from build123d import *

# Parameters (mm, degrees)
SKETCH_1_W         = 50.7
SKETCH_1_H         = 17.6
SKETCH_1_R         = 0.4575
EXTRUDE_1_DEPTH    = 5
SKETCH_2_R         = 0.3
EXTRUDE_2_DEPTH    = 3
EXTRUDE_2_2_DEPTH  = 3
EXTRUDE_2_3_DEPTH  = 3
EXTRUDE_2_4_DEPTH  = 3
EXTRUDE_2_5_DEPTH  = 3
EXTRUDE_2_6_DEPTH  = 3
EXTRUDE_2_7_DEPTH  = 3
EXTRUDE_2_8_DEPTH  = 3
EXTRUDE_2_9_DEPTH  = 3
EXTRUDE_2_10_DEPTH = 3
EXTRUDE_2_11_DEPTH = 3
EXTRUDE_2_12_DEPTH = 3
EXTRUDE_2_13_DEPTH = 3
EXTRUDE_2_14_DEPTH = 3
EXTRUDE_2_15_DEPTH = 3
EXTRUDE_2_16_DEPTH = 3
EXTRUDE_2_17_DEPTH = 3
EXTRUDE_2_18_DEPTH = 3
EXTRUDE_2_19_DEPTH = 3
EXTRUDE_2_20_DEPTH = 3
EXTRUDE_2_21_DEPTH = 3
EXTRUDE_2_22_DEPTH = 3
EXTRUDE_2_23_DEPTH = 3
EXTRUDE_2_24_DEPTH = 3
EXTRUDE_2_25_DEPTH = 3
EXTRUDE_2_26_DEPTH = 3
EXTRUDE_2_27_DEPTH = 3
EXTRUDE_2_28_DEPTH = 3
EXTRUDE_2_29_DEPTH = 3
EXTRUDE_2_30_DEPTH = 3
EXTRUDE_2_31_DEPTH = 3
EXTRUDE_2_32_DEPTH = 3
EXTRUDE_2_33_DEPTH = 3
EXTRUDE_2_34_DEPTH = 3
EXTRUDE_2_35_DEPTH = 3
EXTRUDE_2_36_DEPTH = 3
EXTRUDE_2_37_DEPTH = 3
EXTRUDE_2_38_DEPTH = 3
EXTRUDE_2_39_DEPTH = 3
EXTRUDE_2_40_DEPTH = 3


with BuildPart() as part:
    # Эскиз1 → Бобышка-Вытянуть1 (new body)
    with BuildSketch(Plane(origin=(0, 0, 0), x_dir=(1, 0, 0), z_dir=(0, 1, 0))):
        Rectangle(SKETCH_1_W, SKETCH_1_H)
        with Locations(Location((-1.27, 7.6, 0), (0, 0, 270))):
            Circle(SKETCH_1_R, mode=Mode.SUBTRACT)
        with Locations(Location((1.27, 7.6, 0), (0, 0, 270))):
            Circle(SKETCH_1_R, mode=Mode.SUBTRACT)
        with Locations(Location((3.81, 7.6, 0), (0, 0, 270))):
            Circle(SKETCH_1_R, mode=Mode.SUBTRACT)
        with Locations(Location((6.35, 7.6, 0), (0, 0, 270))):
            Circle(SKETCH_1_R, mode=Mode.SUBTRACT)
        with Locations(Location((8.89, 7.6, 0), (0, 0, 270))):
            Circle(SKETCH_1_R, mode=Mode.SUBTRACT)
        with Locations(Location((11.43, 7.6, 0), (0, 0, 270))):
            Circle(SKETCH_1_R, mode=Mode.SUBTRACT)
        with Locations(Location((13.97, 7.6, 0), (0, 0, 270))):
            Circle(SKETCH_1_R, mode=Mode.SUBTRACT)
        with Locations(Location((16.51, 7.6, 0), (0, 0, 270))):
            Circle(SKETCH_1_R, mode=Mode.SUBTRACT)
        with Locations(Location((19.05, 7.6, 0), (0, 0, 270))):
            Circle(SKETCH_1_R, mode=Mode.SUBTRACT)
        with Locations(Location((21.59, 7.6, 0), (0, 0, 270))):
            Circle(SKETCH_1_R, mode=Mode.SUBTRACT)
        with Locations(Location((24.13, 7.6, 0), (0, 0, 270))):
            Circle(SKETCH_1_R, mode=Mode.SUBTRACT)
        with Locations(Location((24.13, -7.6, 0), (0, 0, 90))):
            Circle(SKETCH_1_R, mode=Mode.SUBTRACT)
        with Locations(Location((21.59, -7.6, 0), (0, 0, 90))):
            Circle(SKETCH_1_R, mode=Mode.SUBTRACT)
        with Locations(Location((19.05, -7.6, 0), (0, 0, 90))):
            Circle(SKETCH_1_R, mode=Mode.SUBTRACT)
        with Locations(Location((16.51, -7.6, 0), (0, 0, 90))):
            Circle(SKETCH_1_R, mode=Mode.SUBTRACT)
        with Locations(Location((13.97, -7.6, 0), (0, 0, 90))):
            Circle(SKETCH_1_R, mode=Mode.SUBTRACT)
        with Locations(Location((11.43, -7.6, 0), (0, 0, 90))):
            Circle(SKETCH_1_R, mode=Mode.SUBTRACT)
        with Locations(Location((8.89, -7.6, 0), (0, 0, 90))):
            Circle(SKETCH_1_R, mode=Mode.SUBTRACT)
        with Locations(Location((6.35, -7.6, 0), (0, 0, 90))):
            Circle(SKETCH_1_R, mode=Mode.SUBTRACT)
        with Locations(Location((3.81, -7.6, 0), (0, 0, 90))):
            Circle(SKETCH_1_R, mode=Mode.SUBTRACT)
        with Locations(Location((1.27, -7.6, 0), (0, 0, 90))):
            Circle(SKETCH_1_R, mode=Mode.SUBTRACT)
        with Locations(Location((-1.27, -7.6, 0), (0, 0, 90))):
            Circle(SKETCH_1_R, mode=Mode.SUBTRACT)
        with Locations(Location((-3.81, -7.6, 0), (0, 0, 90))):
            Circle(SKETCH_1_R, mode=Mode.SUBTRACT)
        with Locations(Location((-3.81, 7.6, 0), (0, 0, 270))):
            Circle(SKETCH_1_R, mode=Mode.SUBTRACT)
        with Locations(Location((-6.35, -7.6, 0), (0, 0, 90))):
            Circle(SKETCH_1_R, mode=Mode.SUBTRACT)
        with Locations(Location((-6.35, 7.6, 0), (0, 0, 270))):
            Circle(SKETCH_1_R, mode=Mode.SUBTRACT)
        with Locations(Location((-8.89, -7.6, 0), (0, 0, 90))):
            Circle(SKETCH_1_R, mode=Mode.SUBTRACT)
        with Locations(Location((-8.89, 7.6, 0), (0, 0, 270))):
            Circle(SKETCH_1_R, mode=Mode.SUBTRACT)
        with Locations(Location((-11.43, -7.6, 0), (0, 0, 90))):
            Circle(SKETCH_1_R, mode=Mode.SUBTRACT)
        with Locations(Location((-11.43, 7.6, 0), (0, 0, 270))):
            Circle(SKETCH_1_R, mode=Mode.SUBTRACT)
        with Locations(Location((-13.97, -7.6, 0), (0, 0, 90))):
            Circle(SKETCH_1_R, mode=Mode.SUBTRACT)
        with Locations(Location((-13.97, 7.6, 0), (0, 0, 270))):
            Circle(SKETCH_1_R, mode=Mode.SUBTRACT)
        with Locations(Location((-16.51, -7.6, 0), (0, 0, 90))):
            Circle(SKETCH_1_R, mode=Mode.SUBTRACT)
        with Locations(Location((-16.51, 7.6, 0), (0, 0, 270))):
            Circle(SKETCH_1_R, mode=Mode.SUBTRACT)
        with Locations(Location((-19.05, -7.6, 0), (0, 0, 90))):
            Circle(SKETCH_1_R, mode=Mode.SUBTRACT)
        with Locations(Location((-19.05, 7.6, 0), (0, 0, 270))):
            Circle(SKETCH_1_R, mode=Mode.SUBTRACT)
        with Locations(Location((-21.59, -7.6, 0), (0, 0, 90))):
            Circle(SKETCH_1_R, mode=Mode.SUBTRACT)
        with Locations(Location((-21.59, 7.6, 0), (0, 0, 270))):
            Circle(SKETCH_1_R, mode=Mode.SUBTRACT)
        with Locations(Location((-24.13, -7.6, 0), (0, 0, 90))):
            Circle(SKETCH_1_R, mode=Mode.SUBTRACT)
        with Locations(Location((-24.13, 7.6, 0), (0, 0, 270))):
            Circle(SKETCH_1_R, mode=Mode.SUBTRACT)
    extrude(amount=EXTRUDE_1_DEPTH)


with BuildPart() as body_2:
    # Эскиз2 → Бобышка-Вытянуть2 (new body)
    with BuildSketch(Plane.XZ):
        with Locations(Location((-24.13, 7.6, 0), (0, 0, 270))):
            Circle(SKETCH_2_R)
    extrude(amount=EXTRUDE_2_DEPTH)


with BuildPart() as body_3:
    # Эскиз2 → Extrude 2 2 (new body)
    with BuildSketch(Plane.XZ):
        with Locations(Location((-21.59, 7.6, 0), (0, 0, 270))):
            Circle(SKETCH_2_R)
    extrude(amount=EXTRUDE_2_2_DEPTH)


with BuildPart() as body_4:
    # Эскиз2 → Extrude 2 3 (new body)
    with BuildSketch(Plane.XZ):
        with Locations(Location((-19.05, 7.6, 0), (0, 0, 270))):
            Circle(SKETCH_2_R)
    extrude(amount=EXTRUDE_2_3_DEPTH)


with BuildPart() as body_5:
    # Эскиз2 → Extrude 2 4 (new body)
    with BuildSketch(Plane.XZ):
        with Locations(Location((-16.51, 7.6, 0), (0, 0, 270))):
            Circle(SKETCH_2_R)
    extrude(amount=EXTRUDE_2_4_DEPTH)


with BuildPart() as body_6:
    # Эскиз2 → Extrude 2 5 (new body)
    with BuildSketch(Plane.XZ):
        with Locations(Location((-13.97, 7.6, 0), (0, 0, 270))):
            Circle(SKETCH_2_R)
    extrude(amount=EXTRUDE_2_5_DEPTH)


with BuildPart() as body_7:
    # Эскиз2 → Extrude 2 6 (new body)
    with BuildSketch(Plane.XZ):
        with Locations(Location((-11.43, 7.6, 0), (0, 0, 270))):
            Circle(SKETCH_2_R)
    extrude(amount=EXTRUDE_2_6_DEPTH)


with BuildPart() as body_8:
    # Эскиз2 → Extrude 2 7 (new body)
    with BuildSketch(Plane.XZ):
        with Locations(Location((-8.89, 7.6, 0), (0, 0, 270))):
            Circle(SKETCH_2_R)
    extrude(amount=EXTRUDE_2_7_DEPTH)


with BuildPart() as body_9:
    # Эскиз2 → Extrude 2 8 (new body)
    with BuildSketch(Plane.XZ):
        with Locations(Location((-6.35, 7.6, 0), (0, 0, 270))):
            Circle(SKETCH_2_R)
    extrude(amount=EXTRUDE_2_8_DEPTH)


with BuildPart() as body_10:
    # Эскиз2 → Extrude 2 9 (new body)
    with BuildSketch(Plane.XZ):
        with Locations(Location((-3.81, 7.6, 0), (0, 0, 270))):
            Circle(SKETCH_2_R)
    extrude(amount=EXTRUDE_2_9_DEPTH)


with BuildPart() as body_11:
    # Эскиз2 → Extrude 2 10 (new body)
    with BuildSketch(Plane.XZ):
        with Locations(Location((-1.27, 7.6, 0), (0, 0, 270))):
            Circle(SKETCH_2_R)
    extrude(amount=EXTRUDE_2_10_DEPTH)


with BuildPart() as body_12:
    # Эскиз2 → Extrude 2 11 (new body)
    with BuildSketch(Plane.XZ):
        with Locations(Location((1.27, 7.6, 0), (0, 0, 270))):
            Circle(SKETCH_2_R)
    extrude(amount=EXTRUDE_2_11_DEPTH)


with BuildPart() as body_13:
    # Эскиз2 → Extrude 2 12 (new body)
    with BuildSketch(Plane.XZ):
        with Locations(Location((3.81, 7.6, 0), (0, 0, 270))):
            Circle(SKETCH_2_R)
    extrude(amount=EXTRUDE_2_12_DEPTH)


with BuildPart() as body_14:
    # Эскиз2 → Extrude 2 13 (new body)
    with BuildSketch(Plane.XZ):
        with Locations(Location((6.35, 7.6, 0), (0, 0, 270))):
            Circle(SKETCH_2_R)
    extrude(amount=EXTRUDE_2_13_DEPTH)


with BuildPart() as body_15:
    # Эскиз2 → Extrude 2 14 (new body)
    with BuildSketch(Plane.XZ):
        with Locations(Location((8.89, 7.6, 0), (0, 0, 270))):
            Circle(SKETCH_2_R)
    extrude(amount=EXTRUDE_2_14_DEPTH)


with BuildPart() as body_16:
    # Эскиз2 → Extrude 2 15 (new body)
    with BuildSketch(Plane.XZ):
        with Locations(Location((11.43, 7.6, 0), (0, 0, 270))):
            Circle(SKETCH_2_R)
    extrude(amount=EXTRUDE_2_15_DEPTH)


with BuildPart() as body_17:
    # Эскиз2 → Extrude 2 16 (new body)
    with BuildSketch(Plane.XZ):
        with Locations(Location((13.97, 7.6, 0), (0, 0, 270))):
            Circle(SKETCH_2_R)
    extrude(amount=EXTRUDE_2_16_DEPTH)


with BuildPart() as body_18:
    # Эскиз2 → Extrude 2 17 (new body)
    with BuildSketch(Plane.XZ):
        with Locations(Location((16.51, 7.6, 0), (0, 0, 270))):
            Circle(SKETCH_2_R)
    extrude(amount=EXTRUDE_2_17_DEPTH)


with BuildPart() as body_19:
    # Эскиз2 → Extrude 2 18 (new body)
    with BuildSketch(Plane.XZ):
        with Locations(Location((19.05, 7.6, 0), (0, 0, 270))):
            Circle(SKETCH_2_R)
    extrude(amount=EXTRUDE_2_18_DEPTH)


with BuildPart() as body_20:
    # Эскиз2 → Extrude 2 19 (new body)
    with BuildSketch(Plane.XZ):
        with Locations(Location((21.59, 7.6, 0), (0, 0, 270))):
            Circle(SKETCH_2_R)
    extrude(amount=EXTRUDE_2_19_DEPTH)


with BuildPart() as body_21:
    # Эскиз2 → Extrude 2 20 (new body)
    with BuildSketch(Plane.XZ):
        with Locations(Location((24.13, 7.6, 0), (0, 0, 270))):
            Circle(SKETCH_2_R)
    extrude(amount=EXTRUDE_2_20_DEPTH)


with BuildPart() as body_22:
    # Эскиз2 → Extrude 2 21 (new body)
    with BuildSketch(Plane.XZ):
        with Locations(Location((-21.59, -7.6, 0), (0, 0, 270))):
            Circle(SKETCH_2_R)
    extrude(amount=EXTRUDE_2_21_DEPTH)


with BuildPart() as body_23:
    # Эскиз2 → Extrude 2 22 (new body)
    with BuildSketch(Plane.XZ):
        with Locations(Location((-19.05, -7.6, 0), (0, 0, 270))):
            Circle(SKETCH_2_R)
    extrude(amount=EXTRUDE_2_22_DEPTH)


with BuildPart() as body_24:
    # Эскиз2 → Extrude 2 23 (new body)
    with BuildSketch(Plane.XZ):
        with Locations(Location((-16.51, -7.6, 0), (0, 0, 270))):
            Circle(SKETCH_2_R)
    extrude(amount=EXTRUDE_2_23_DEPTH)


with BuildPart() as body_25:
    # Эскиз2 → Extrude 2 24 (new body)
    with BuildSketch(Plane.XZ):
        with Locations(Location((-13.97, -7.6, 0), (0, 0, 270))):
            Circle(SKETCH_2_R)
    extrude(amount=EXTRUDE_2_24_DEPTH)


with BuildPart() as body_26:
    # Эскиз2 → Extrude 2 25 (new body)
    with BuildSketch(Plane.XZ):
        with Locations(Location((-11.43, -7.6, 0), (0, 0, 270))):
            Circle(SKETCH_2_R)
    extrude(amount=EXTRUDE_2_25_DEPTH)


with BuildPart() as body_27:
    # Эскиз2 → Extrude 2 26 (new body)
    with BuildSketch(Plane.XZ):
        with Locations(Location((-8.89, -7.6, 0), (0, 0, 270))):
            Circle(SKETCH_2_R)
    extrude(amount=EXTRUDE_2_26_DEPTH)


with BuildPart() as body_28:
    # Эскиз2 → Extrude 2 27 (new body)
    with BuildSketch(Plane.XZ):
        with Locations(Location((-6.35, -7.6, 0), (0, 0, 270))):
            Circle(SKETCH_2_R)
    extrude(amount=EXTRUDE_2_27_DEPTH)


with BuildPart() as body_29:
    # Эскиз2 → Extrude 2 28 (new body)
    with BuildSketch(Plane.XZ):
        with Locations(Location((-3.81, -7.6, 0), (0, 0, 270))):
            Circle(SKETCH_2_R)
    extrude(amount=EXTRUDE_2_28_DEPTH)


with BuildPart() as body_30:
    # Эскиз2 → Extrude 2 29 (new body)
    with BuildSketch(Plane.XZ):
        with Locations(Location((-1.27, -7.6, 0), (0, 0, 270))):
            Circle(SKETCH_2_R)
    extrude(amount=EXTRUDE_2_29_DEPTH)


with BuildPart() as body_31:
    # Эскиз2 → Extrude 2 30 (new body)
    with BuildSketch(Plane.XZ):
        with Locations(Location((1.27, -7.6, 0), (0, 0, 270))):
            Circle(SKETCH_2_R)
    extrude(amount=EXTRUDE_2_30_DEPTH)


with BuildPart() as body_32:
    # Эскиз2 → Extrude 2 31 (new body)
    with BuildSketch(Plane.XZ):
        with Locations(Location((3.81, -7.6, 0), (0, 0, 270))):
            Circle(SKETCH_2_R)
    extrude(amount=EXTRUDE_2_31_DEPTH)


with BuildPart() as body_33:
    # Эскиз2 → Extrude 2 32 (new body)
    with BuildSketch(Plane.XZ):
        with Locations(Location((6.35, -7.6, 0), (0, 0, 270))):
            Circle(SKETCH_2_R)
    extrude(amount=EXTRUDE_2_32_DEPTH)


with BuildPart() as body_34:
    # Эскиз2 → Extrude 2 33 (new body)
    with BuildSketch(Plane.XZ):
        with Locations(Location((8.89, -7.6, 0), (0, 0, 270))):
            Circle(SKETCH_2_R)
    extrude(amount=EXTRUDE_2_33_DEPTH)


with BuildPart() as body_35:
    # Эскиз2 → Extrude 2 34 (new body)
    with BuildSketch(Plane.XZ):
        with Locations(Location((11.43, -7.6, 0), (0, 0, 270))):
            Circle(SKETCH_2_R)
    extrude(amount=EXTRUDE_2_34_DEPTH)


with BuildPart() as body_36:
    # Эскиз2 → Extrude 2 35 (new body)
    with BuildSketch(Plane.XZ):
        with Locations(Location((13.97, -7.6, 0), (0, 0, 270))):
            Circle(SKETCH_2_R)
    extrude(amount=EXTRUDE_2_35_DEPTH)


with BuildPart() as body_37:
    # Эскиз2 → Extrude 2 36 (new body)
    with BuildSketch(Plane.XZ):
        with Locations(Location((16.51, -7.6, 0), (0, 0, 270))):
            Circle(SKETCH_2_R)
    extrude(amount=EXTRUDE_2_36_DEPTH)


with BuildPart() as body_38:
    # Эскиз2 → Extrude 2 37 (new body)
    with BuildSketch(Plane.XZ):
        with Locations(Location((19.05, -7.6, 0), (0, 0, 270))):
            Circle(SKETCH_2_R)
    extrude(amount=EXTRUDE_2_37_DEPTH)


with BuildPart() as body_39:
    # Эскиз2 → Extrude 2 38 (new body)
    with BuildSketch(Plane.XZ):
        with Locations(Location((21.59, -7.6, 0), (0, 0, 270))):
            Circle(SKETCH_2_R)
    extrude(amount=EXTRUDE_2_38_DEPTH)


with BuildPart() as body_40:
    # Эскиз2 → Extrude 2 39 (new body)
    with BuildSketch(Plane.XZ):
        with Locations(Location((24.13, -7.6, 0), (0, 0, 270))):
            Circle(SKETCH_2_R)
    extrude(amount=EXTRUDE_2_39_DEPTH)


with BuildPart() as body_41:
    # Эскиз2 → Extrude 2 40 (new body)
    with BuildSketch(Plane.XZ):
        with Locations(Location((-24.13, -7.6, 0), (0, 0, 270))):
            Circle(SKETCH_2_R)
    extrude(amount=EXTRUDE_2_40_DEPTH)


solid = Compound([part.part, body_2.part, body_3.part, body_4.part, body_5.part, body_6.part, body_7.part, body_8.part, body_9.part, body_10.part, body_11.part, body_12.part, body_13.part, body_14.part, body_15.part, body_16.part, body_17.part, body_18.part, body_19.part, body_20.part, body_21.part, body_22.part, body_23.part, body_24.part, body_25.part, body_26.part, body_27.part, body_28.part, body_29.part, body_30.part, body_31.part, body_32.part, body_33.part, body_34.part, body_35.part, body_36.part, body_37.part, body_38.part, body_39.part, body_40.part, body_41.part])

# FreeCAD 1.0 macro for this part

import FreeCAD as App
import Part
import Sketcher
Q = App.Units.Quantity


def add_polygon(sketch, points):
    """Adds a closed chain of lines whose ends are joined by coincident constraints."""
    first, n = sketch.GeometryCount, len(points)
    for a, b in zip(points, points[1:] + points[:1]):
        sketch.addGeometry(Part.LineSegment(App.Vector(*a, 0), App.Vector(*b, 0)), False)
    for i in range(n):
        sketch.addConstraint(Sketcher.Constraint("Coincident", first + i, 2, first + (i + 1) % n, 1))

doc = App.newDocument("Part")
body = doc.addObject("PartDesign::Body", "Body")

# Sketch on XZ plane
sketch1 = doc.addObject("Sketcher::SketchObject", "Sketch")
body.addObject(sketch1)
sketch1.AttachmentSupport = (doc.XZ_Plane, [""])
sketch1.MapMode = "FlatFace"
add_polygon(sketch1, [(-25.35, -8.8), (-25.35, 8.8), (25.35, 8.8), (25.35, -8.8)])  # lines 0-3
sketch1.addGeometry(Part.Circle(App.Vector(-24.13, 7.6, 0), App.Vector(0, 0, 1), 0.4575), False)  # 4
sketch1.addGeometry(Part.Circle(App.Vector(-21.59, 7.6, 0), App.Vector(0, 0, 1), 0.4575), False)  # 5
sketch1.addGeometry(Part.Circle(App.Vector(-19.05, 7.6, 0), App.Vector(0, 0, 1), 0.4575), False)  # 6
sketch1.addGeometry(Part.Circle(App.Vector(-16.51, 7.6, 0), App.Vector(0, 0, 1), 0.4575), False)  # 7
sketch1.addGeometry(Part.Circle(App.Vector(-13.97, 7.6, 0), App.Vector(0, 0, 1), 0.4575), False)  # 8
sketch1.addGeometry(Part.Circle(App.Vector(-11.43, 7.6, 0), App.Vector(0, 0, 1), 0.4575), False)  # 9
sketch1.addGeometry(Part.Circle(App.Vector(-8.89, 7.6, 0), App.Vector(0, 0, 1), 0.4575), False)  # 10
sketch1.addGeometry(Part.Circle(App.Vector(-6.35, 7.6, 0), App.Vector(0, 0, 1), 0.4575), False)  # 11
sketch1.addGeometry(Part.Circle(App.Vector(-3.81, 7.6, 0), App.Vector(0, 0, 1), 0.4575), False)  # 12
sketch1.addGeometry(Part.Circle(App.Vector(-1.27, 7.6, 0), App.Vector(0, 0, 1), 0.4575), False)  # 13
sketch1.addGeometry(Part.Circle(App.Vector(1.27, 7.6, 0), App.Vector(0, 0, 1), 0.4575), False)  # 14
sketch1.addGeometry(Part.Circle(App.Vector(3.81, 7.6, 0), App.Vector(0, 0, 1), 0.4575), False)  # 15
sketch1.addGeometry(Part.Circle(App.Vector(6.35, 7.6, 0), App.Vector(0, 0, 1), 0.4575), False)  # 16
sketch1.addGeometry(Part.Circle(App.Vector(8.89, 7.6, 0), App.Vector(0, 0, 1), 0.4575), False)  # 17
sketch1.addGeometry(Part.Circle(App.Vector(11.43, 7.6, 0), App.Vector(0, 0, 1), 0.4575), False)  # 18
sketch1.addGeometry(Part.Circle(App.Vector(13.97, 7.6, 0), App.Vector(0, 0, 1), 0.4575), False)  # 19
sketch1.addGeometry(Part.Circle(App.Vector(16.51, 7.6, 0), App.Vector(0, 0, 1), 0.4575), False)  # 20
sketch1.addGeometry(Part.Circle(App.Vector(19.05, 7.6, 0), App.Vector(0, 0, 1), 0.4575), False)  # 21
sketch1.addGeometry(Part.Circle(App.Vector(21.59, 7.6, 0), App.Vector(0, 0, 1), 0.4575), False)  # 22
sketch1.addGeometry(Part.Circle(App.Vector(24.13, 7.6, 0), App.Vector(0, 0, 1), 0.4575), False)  # 23
sketch1.addGeometry(Part.Circle(App.Vector(-24.13, -7.6, 0), App.Vector(0, 0, 1), 0.4575), False)  # 24
sketch1.addGeometry(Part.Circle(App.Vector(-21.59, -7.6, 0), App.Vector(0, 0, 1), 0.4575), False)  # 25
sketch1.addGeometry(Part.Circle(App.Vector(-19.05, -7.6, 0), App.Vector(0, 0, 1), 0.4575), False)  # 26
sketch1.addGeometry(Part.Circle(App.Vector(-16.51, -7.6, 0), App.Vector(0, 0, 1), 0.4575), False)  # 27
sketch1.addGeometry(Part.Circle(App.Vector(-13.97, -7.6, 0), App.Vector(0, 0, 1), 0.4575), False)  # 28
sketch1.addGeometry(Part.Circle(App.Vector(-11.43, -7.6, 0), App.Vector(0, 0, 1), 0.4575), False)  # 29
sketch1.addGeometry(Part.Circle(App.Vector(-8.89, -7.6, 0), App.Vector(0, 0, 1), 0.4575), False)  # 30
sketch1.addGeometry(Part.Circle(App.Vector(-6.35, -7.6, 0), App.Vector(0, 0, 1), 0.4575), False)  # 31
sketch1.addGeometry(Part.Circle(App.Vector(-3.81, -7.6, 0), App.Vector(0, 0, 1), 0.4575), False)  # 32
sketch1.addGeometry(Part.Circle(App.Vector(-1.27, -7.6, 0), App.Vector(0, 0, 1), 0.4575), False)  # 33
sketch1.addGeometry(Part.Circle(App.Vector(1.27, -7.6, 0), App.Vector(0, 0, 1), 0.4575), False)  # 34
sketch1.addGeometry(Part.Circle(App.Vector(3.81, -7.6, 0), App.Vector(0, 0, 1), 0.4575), False)  # 35
sketch1.addGeometry(Part.Circle(App.Vector(6.35, -7.6, 0), App.Vector(0, 0, 1), 0.4575), False)  # 36
sketch1.addGeometry(Part.Circle(App.Vector(8.89, -7.6, 0), App.Vector(0, 0, 1), 0.4575), False)  # 37
sketch1.addGeometry(Part.Circle(App.Vector(11.43, -7.6, 0), App.Vector(0, 0, 1), 0.4575), False)  # 38
sketch1.addGeometry(Part.Circle(App.Vector(13.97, -7.6, 0), App.Vector(0, 0, 1), 0.4575), False)  # 39
sketch1.addGeometry(Part.Circle(App.Vector(16.51, -7.6, 0), App.Vector(0, 0, 1), 0.4575), False)  # 40
sketch1.addGeometry(Part.Circle(App.Vector(19.05, -7.6, 0), App.Vector(0, 0, 1), 0.4575), False)  # 41
sketch1.addGeometry(Part.Circle(App.Vector(21.59, -7.6, 0), App.Vector(0, 0, 1), 0.4575), False)  # 42
sketch1.addGeometry(Part.Circle(App.Vector(24.13, -7.6, 0), App.Vector(0, 0, 1), 0.4575), False)  # 43
sketch1.addConstraint([
    Sketcher.Constraint("Vertical", 0),
    Sketcher.Constraint("Horizontal", 1),
    Sketcher.Constraint("Vertical", 2),
    Sketcher.Constraint("Horizontal", 3),
    Sketcher.Constraint("Equal", 4, 5),
    Sketcher.Constraint("Equal", 5, 6),
    Sketcher.Constraint("Equal", 6, 7),
    Sketcher.Constraint("Equal", 7, 8),
    Sketcher.Constraint("Equal", 8, 9),
    Sketcher.Constraint("Equal", 9, 10),
    Sketcher.Constraint("Equal", 10, 11),
    Sketcher.Constraint("Equal", 11, 12),
    Sketcher.Constraint("Equal", 12, 13),
    Sketcher.Constraint("Equal", 13, 14),
    Sketcher.Constraint("Equal", 14, 15),
    Sketcher.Constraint("Equal", 15, 16),
    Sketcher.Constraint("Equal", 16, 17),
    Sketcher.Constraint("Equal", 17, 18),
    Sketcher.Constraint("Equal", 18, 19),
    Sketcher.Constraint("Equal", 19, 20),
    Sketcher.Constraint("Equal", 20, 21),
    Sketcher.Constraint("Equal", 21, 22),
    Sketcher.Constraint("Equal", 22, 23),
    Sketcher.Constraint("Equal", 23, 24),
    Sketcher.Constraint("Equal", 24, 25),
    Sketcher.Constraint("Equal", 25, 26),
    Sketcher.Constraint("Equal", 26, 27),
    Sketcher.Constraint("Equal", 27, 28),
    Sketcher.Constraint("Equal", 28, 29),
    Sketcher.Constraint("Equal", 29, 30),
    Sketcher.Constraint("Equal", 30, 31),
    Sketcher.Constraint("Equal", 31, 32),
    Sketcher.Constraint("Equal", 32, 33),
    Sketcher.Constraint("Equal", 33, 34),
    Sketcher.Constraint("Equal", 34, 35),
    Sketcher.Constraint("Equal", 35, 36),
    Sketcher.Constraint("Equal", 36, 37),
    Sketcher.Constraint("Equal", 37, 38),
    Sketcher.Constraint("Equal", 38, 39),
    Sketcher.Constraint("Equal", 39, 40),
    Sketcher.Constraint("Equal", 40, 41),
    Sketcher.Constraint("Equal", 41, 42),
    Sketcher.Constraint("Equal", 42, 43),
    Sketcher.Constraint("Symmetric", 23, 3, 24, 3, -1, 1),
    Sketcher.Constraint("Symmetric", 22, 3, 25, 3, -1, 1),
    Sketcher.Constraint("Symmetric", 21, 3, 26, 3, -1, 1),
    Sketcher.Constraint("Symmetric", 20, 3, 27, 3, -1, 1),
    Sketcher.Constraint("Symmetric", 19, 3, 28, 3, -1, 1),
    Sketcher.Constraint("Symmetric", 18, 3, 29, 3, -1, 1),
    Sketcher.Constraint("Symmetric", 17, 3, 30, 3, -1, 1),
    Sketcher.Constraint("Symmetric", 16, 3, 31, 3, -1, 1),
    Sketcher.Constraint("Symmetric", 15, 3, 32, 3, -1, 1),
    Sketcher.Constraint("Symmetric", 14, 3, 33, 3, -1, 1),
    Sketcher.Constraint("Symmetric", 13, 3, 34, 3, -1, 1),
    Sketcher.Constraint("Symmetric", 12, 3, 35, 3, -1, 1),
    Sketcher.Constraint("Symmetric", 11, 3, 36, 3, -1, 1),
    Sketcher.Constraint("Symmetric", 10, 3, 37, 3, -1, 1),
    Sketcher.Constraint("Symmetric", 9, 3, 38, 3, -1, 1),
    Sketcher.Constraint("Symmetric", 8, 3, 39, 3, -1, 1),
    Sketcher.Constraint("Symmetric", 7, 3, 40, 3, -1, 1),
    Sketcher.Constraint("Symmetric", 6, 3, 41, 3, -1, 1),
    Sketcher.Constraint("Symmetric", 5, 3, 42, 3, -1, 1),
    Sketcher.Constraint("Symmetric", 4, 3, 43, 3, -1, 1),
    Sketcher.Constraint("Symmetric", 0, 2, 2, 2, -1, 1),
    Sketcher.Constraint("Symmetric", 13, 3, 14, 3, -2),
    Sketcher.Constraint("Symmetric", 12, 3, 15, 3, -2),
    Sketcher.Constraint("Symmetric", 11, 3, 16, 3, -2),
    Sketcher.Constraint("Symmetric", 10, 3, 17, 3, -2),
    Sketcher.Constraint("Symmetric", 9, 3, 18, 3, -2),
    Sketcher.Constraint("Symmetric", 8, 3, 19, 3, -2),
    Sketcher.Constraint("Symmetric", 7, 3, 20, 3, -2),
    Sketcher.Constraint("Symmetric", 6, 3, 21, 3, -2),
    Sketcher.Constraint("Symmetric", 5, 3, 22, 3, -2),
    Sketcher.Constraint("Symmetric", 4, 3, 23, 3, -2),
    Sketcher.Constraint("Horizontal", 4, 3, 5, 3),
    Sketcher.Constraint("Horizontal", 5, 3, 6, 3),
    Sketcher.Constraint("Horizontal", 6, 3, 7, 3),
    Sketcher.Constraint("Horizontal", 7, 3, 8, 3),
    Sketcher.Constraint("Horizontal", 8, 3, 9, 3),
    Sketcher.Constraint("Horizontal", 9, 3, 10, 3),
    Sketcher.Constraint("Horizontal", 10, 3, 11, 3),
    Sketcher.Constraint("Horizontal", 11, 3, 12, 3),
    Sketcher.Constraint("Horizontal", 12, 3, 13, 3),
    Sketcher.Constraint("Diameter", 4, Q("0.915 mm")),
    Sketcher.Constraint("DistanceX", 1, 1, 1, 2, Q("50.7 mm")),
    Sketcher.Constraint("DistanceY", 0, 1, 0, 2, Q("17.6 mm")),
    Sketcher.Constraint("DistanceY", -1, 1, 4, 3, Q("7.6 mm")),
    Sketcher.Constraint("DistanceX", 4, 3, 9, 3, Q("12.7 mm")),
    Sketcher.Constraint("DistanceX", 5, 3, 10, 3, Q("12.7 mm")),
    Sketcher.Constraint("DistanceX", 6, 3, 11, 3, Q("12.7 mm")),
    Sketcher.Constraint("DistanceX", 7, 3, 12, 3, Q("12.7 mm")),
    Sketcher.Constraint("DistanceX", 8, 3, 13, 3, Q("12.7 mm")),
    Sketcher.Constraint("DistanceX", 9, 3, 14, 3, Q("12.7 mm")),
    Sketcher.Constraint("DistanceX", 10, 3, 15, 3, Q("12.7 mm")),
    Sketcher.Constraint("DistanceX", 11, 3, 16, 3, Q("12.7 mm")),
    Sketcher.Constraint("DistanceX", 4, 3, -1, 1, Q("24.13 mm")),
    Sketcher.Constraint("DistanceX", 5, 3, -1, 1, Q("21.59 mm")),
])
pad1 = doc.addObject("PartDesign::Pad", "Pad")
body.addObject(pad1)
pad1.Profile = sketch1
pad1.Length = 5
pad1.Reversed = True
body2 = doc.addObject("PartDesign::Body", "Body001")

# Sketch on XZ plane
sketch2 = doc.addObject("Sketcher::SketchObject", "Sketch001")
body2.addObject(sketch2)
sketch2.AttachmentSupport = (doc.getObject("XZ_Plane001"), [""])
sketch2.MapMode = "FlatFace"
sketch2.addGeometry(Part.Circle(App.Vector(-24.13, 7.6, 0), App.Vector(0, 0, 1), 0.3), False)
sketch2.addConstraint([
    Sketcher.Constraint("Diameter", 0, Q("0.6 mm")),
    Sketcher.Constraint("DistanceY", -1, 1, 0, 3, Q("7.6 mm")),
    Sketcher.Constraint("DistanceX", 0, 3, -1, 1, Q("24.13 mm")),
])
pad2 = doc.addObject("PartDesign::Pad", "Pad001")
body2.addObject(pad2)
pad2.Profile = sketch2
pad2.Length = 3
body3 = doc.addObject("PartDesign::Body", "Body002")

# Sketch on XZ plane
sketch3 = doc.addObject("Sketcher::SketchObject", "Sketch002")
body3.addObject(sketch3)
sketch3.AttachmentSupport = (doc.getObject("XZ_Plane002"), [""])
sketch3.MapMode = "FlatFace"
sketch3.addGeometry(Part.Circle(App.Vector(-21.59, 7.6, 0), App.Vector(0, 0, 1), 0.3), False)
sketch3.addConstraint([
    Sketcher.Constraint("Diameter", 0, Q("0.6 mm")),
    Sketcher.Constraint("DistanceY", -1, 1, 0, 3, Q("7.6 mm")),
    Sketcher.Constraint("DistanceX", 0, 3, -1, 1, Q("21.59 mm")),
])
pad3 = doc.addObject("PartDesign::Pad", "Pad002")
body3.addObject(pad3)
pad3.Profile = sketch3
pad3.Length = 3
body4 = doc.addObject("PartDesign::Body", "Body003")

# Sketch on XZ plane
sketch4 = doc.addObject("Sketcher::SketchObject", "Sketch003")
body4.addObject(sketch4)
sketch4.AttachmentSupport = (doc.getObject("XZ_Plane003"), [""])
sketch4.MapMode = "FlatFace"
sketch4.addGeometry(Part.Circle(App.Vector(-19.05, 7.6, 0), App.Vector(0, 0, 1), 0.3), False)
sketch4.addConstraint([
    Sketcher.Constraint("Diameter", 0, Q("0.6 mm")),
    Sketcher.Constraint("DistanceY", -1, 1, 0, 3, Q("7.6 mm")),
    Sketcher.Constraint("DistanceX", 0, 3, -1, 1, Q("19.05 mm")),
])
pad4 = doc.addObject("PartDesign::Pad", "Pad003")
body4.addObject(pad4)
pad4.Profile = sketch4
pad4.Length = 3
body5 = doc.addObject("PartDesign::Body", "Body004")

# Sketch on XZ plane
sketch5 = doc.addObject("Sketcher::SketchObject", "Sketch004")
body5.addObject(sketch5)
sketch5.AttachmentSupport = (doc.getObject("XZ_Plane004"), [""])
sketch5.MapMode = "FlatFace"
sketch5.addGeometry(Part.Circle(App.Vector(-16.51, 7.6, 0), App.Vector(0, 0, 1), 0.3), False)
sketch5.addConstraint([
    Sketcher.Constraint("Diameter", 0, Q("0.6 mm")),
    Sketcher.Constraint("DistanceY", -1, 1, 0, 3, Q("7.6 mm")),
    Sketcher.Constraint("DistanceX", 0, 3, -1, 1, Q("16.51 mm")),
])
pad5 = doc.addObject("PartDesign::Pad", "Pad004")
body5.addObject(pad5)
pad5.Profile = sketch5
pad5.Length = 3
body6 = doc.addObject("PartDesign::Body", "Body005")

# Sketch on XZ plane
sketch6 = doc.addObject("Sketcher::SketchObject", "Sketch005")
body6.addObject(sketch6)
sketch6.AttachmentSupport = (doc.getObject("XZ_Plane005"), [""])
sketch6.MapMode = "FlatFace"
sketch6.addGeometry(Part.Circle(App.Vector(-13.97, 7.6, 0), App.Vector(0, 0, 1), 0.3), False)
sketch6.addConstraint([
    Sketcher.Constraint("Diameter", 0, Q("0.6 mm")),
    Sketcher.Constraint("DistanceY", -1, 1, 0, 3, Q("7.6 mm")),
    Sketcher.Constraint("DistanceX", 0, 3, -1, 1, Q("13.97 mm")),
])
pad6 = doc.addObject("PartDesign::Pad", "Pad005")
body6.addObject(pad6)
pad6.Profile = sketch6
pad6.Length = 3
body7 = doc.addObject("PartDesign::Body", "Body006")

# Sketch on XZ plane
sketch7 = doc.addObject("Sketcher::SketchObject", "Sketch006")
body7.addObject(sketch7)
sketch7.AttachmentSupport = (doc.getObject("XZ_Plane006"), [""])
sketch7.MapMode = "FlatFace"
sketch7.addGeometry(Part.Circle(App.Vector(-11.43, 7.6, 0), App.Vector(0, 0, 1), 0.3), False)
sketch7.addConstraint([
    Sketcher.Constraint("Diameter", 0, Q("0.6 mm")),
    Sketcher.Constraint("DistanceY", -1, 1, 0, 3, Q("7.6 mm")),
    Sketcher.Constraint("DistanceX", 0, 3, -1, 1, Q("11.43 mm")),
])
pad7 = doc.addObject("PartDesign::Pad", "Pad006")
body7.addObject(pad7)
pad7.Profile = sketch7
pad7.Length = 3
body8 = doc.addObject("PartDesign::Body", "Body007")

# Sketch on XZ plane
sketch8 = doc.addObject("Sketcher::SketchObject", "Sketch007")
body8.addObject(sketch8)
sketch8.AttachmentSupport = (doc.getObject("XZ_Plane007"), [""])
sketch8.MapMode = "FlatFace"
sketch8.addGeometry(Part.Circle(App.Vector(-8.89, 7.6, 0), App.Vector(0, 0, 1), 0.3), False)
sketch8.addConstraint([
    Sketcher.Constraint("Diameter", 0, Q("0.6 mm")),
    Sketcher.Constraint("DistanceY", -1, 1, 0, 3, Q("7.6 mm")),
    Sketcher.Constraint("DistanceX", 0, 3, -1, 1, Q("8.89 mm")),
])
pad8 = doc.addObject("PartDesign::Pad", "Pad007")
body8.addObject(pad8)
pad8.Profile = sketch8
pad8.Length = 3
body9 = doc.addObject("PartDesign::Body", "Body008")

# Sketch on XZ plane
sketch9 = doc.addObject("Sketcher::SketchObject", "Sketch008")
body9.addObject(sketch9)
sketch9.AttachmentSupport = (doc.getObject("XZ_Plane008"), [""])
sketch9.MapMode = "FlatFace"
sketch9.addGeometry(Part.Circle(App.Vector(-6.35, 7.6, 0), App.Vector(0, 0, 1), 0.3), False)
sketch9.addConstraint([
    Sketcher.Constraint("Diameter", 0, Q("0.6 mm")),
    Sketcher.Constraint("DistanceY", -1, 1, 0, 3, Q("7.6 mm")),
    Sketcher.Constraint("DistanceX", 0, 3, -1, 1, Q("6.35 mm")),
])
pad9 = doc.addObject("PartDesign::Pad", "Pad008")
body9.addObject(pad9)
pad9.Profile = sketch9
pad9.Length = 3
body10 = doc.addObject("PartDesign::Body", "Body009")

# Sketch on XZ plane
sketch10 = doc.addObject("Sketcher::SketchObject", "Sketch009")
body10.addObject(sketch10)
sketch10.AttachmentSupport = (doc.getObject("XZ_Plane009"), [""])
sketch10.MapMode = "FlatFace"
sketch10.addGeometry(Part.Circle(App.Vector(-3.81, 7.6, 0), App.Vector(0, 0, 1), 0.3), False)
sketch10.addConstraint([
    Sketcher.Constraint("Diameter", 0, Q("0.6 mm")),
    Sketcher.Constraint("DistanceY", -1, 1, 0, 3, Q("7.6 mm")),
    Sketcher.Constraint("DistanceX", 0, 3, -1, 1, Q("3.81 mm")),
])
pad10 = doc.addObject("PartDesign::Pad", "Pad009")
body10.addObject(pad10)
pad10.Profile = sketch10
pad10.Length = 3
body11 = doc.addObject("PartDesign::Body", "Body010")

# Sketch on XZ plane
sketch11 = doc.addObject("Sketcher::SketchObject", "Sketch010")
body11.addObject(sketch11)
sketch11.AttachmentSupport = (doc.getObject("XZ_Plane010"), [""])
sketch11.MapMode = "FlatFace"
sketch11.addGeometry(Part.Circle(App.Vector(-1.27, 7.6, 0), App.Vector(0, 0, 1), 0.3), False)
sketch11.addConstraint([
    Sketcher.Constraint("Diameter", 0, Q("0.6 mm")),
    Sketcher.Constraint("DistanceY", -1, 1, 0, 3, Q("7.6 mm")),
    Sketcher.Constraint("DistanceX", 0, 3, -1, 1, Q("1.27 mm")),
])
pad11 = doc.addObject("PartDesign::Pad", "Pad010")
body11.addObject(pad11)
pad11.Profile = sketch11
pad11.Length = 3
body12 = doc.addObject("PartDesign::Body", "Body011")

# Sketch on XZ plane
sketch12 = doc.addObject("Sketcher::SketchObject", "Sketch011")
body12.addObject(sketch12)
sketch12.AttachmentSupport = (doc.getObject("XZ_Plane011"), [""])
sketch12.MapMode = "FlatFace"
sketch12.addGeometry(Part.Circle(App.Vector(1.27, 7.6, 0), App.Vector(0, 0, 1), 0.3), False)
sketch12.addConstraint([
    Sketcher.Constraint("Diameter", 0, Q("0.6 mm")),
    Sketcher.Constraint("DistanceY", -1, 1, 0, 3, Q("7.6 mm")),
    Sketcher.Constraint("DistanceX", -1, 1, 0, 3, Q("1.27 mm")),
])
pad12 = doc.addObject("PartDesign::Pad", "Pad011")
body12.addObject(pad12)
pad12.Profile = sketch12
pad12.Length = 3
body13 = doc.addObject("PartDesign::Body", "Body012")

# Sketch on XZ plane
sketch13 = doc.addObject("Sketcher::SketchObject", "Sketch012")
body13.addObject(sketch13)
sketch13.AttachmentSupport = (doc.getObject("XZ_Plane012"), [""])
sketch13.MapMode = "FlatFace"
sketch13.addGeometry(Part.Circle(App.Vector(3.81, 7.6, 0), App.Vector(0, 0, 1), 0.3), False)
sketch13.addConstraint([
    Sketcher.Constraint("Diameter", 0, Q("0.6 mm")),
    Sketcher.Constraint("DistanceY", -1, 1, 0, 3, Q("7.6 mm")),
    Sketcher.Constraint("DistanceX", -1, 1, 0, 3, Q("3.81 mm")),
])
pad13 = doc.addObject("PartDesign::Pad", "Pad012")
body13.addObject(pad13)
pad13.Profile = sketch13
pad13.Length = 3
body14 = doc.addObject("PartDesign::Body", "Body013")

# Sketch on XZ plane
sketch14 = doc.addObject("Sketcher::SketchObject", "Sketch013")
body14.addObject(sketch14)
sketch14.AttachmentSupport = (doc.getObject("XZ_Plane013"), [""])
sketch14.MapMode = "FlatFace"
sketch14.addGeometry(Part.Circle(App.Vector(6.35, 7.6, 0), App.Vector(0, 0, 1), 0.3), False)
sketch14.addConstraint([
    Sketcher.Constraint("Diameter", 0, Q("0.6 mm")),
    Sketcher.Constraint("DistanceY", -1, 1, 0, 3, Q("7.6 mm")),
    Sketcher.Constraint("DistanceX", -1, 1, 0, 3, Q("6.35 mm")),
])
pad14 = doc.addObject("PartDesign::Pad", "Pad013")
body14.addObject(pad14)
pad14.Profile = sketch14
pad14.Length = 3
body15 = doc.addObject("PartDesign::Body", "Body014")

# Sketch on XZ plane
sketch15 = doc.addObject("Sketcher::SketchObject", "Sketch014")
body15.addObject(sketch15)
sketch15.AttachmentSupport = (doc.getObject("XZ_Plane014"), [""])
sketch15.MapMode = "FlatFace"
sketch15.addGeometry(Part.Circle(App.Vector(8.89, 7.6, 0), App.Vector(0, 0, 1), 0.3), False)
sketch15.addConstraint([
    Sketcher.Constraint("Diameter", 0, Q("0.6 mm")),
    Sketcher.Constraint("DistanceY", -1, 1, 0, 3, Q("7.6 mm")),
    Sketcher.Constraint("DistanceX", -1, 1, 0, 3, Q("8.89 mm")),
])
pad15 = doc.addObject("PartDesign::Pad", "Pad014")
body15.addObject(pad15)
pad15.Profile = sketch15
pad15.Length = 3
body16 = doc.addObject("PartDesign::Body", "Body015")

# Sketch on XZ plane
sketch16 = doc.addObject("Sketcher::SketchObject", "Sketch015")
body16.addObject(sketch16)
sketch16.AttachmentSupport = (doc.getObject("XZ_Plane015"), [""])
sketch16.MapMode = "FlatFace"
sketch16.addGeometry(Part.Circle(App.Vector(11.43, 7.6, 0), App.Vector(0, 0, 1), 0.3), False)
sketch16.addConstraint([
    Sketcher.Constraint("Diameter", 0, Q("0.6 mm")),
    Sketcher.Constraint("DistanceY", -1, 1, 0, 3, Q("7.6 mm")),
    Sketcher.Constraint("DistanceX", -1, 1, 0, 3, Q("11.43 mm")),
])
pad16 = doc.addObject("PartDesign::Pad", "Pad015")
body16.addObject(pad16)
pad16.Profile = sketch16
pad16.Length = 3
body17 = doc.addObject("PartDesign::Body", "Body016")

# Sketch on XZ plane
sketch17 = doc.addObject("Sketcher::SketchObject", "Sketch016")
body17.addObject(sketch17)
sketch17.AttachmentSupport = (doc.getObject("XZ_Plane016"), [""])
sketch17.MapMode = "FlatFace"
sketch17.addGeometry(Part.Circle(App.Vector(13.97, 7.6, 0), App.Vector(0, 0, 1), 0.3), False)
sketch17.addConstraint([
    Sketcher.Constraint("Diameter", 0, Q("0.6 mm")),
    Sketcher.Constraint("DistanceY", -1, 1, 0, 3, Q("7.6 mm")),
    Sketcher.Constraint("DistanceX", -1, 1, 0, 3, Q("13.97 mm")),
])
pad17 = doc.addObject("PartDesign::Pad", "Pad016")
body17.addObject(pad17)
pad17.Profile = sketch17
pad17.Length = 3
body18 = doc.addObject("PartDesign::Body", "Body017")

# Sketch on XZ plane
sketch18 = doc.addObject("Sketcher::SketchObject", "Sketch017")
body18.addObject(sketch18)
sketch18.AttachmentSupport = (doc.getObject("XZ_Plane017"), [""])
sketch18.MapMode = "FlatFace"
sketch18.addGeometry(Part.Circle(App.Vector(16.51, 7.6, 0), App.Vector(0, 0, 1), 0.3), False)
sketch18.addConstraint([
    Sketcher.Constraint("Diameter", 0, Q("0.6 mm")),
    Sketcher.Constraint("DistanceY", -1, 1, 0, 3, Q("7.6 mm")),
    Sketcher.Constraint("DistanceX", -1, 1, 0, 3, Q("16.51 mm")),
])
pad18 = doc.addObject("PartDesign::Pad", "Pad017")
body18.addObject(pad18)
pad18.Profile = sketch18
pad18.Length = 3
body19 = doc.addObject("PartDesign::Body", "Body018")

# Sketch on XZ plane
sketch19 = doc.addObject("Sketcher::SketchObject", "Sketch018")
body19.addObject(sketch19)
sketch19.AttachmentSupport = (doc.getObject("XZ_Plane018"), [""])
sketch19.MapMode = "FlatFace"
sketch19.addGeometry(Part.Circle(App.Vector(19.05, 7.6, 0), App.Vector(0, 0, 1), 0.3), False)
sketch19.addConstraint([
    Sketcher.Constraint("Diameter", 0, Q("0.6 mm")),
    Sketcher.Constraint("DistanceY", -1, 1, 0, 3, Q("7.6 mm")),
    Sketcher.Constraint("DistanceX", -1, 1, 0, 3, Q("19.05 mm")),
])
pad19 = doc.addObject("PartDesign::Pad", "Pad018")
body19.addObject(pad19)
pad19.Profile = sketch19
pad19.Length = 3
body20 = doc.addObject("PartDesign::Body", "Body019")

# Sketch on XZ plane
sketch20 = doc.addObject("Sketcher::SketchObject", "Sketch019")
body20.addObject(sketch20)
sketch20.AttachmentSupport = (doc.getObject("XZ_Plane019"), [""])
sketch20.MapMode = "FlatFace"
sketch20.addGeometry(Part.Circle(App.Vector(21.59, 7.6, 0), App.Vector(0, 0, 1), 0.3), False)
sketch20.addConstraint([
    Sketcher.Constraint("Diameter", 0, Q("0.6 mm")),
    Sketcher.Constraint("DistanceY", -1, 1, 0, 3, Q("7.6 mm")),
    Sketcher.Constraint("DistanceX", -1, 1, 0, 3, Q("21.59 mm")),
])
pad20 = doc.addObject("PartDesign::Pad", "Pad019")
body20.addObject(pad20)
pad20.Profile = sketch20
pad20.Length = 3
body21 = doc.addObject("PartDesign::Body", "Body020")

# Sketch on XZ plane
sketch21 = doc.addObject("Sketcher::SketchObject", "Sketch020")
body21.addObject(sketch21)
sketch21.AttachmentSupport = (doc.getObject("XZ_Plane020"), [""])
sketch21.MapMode = "FlatFace"
sketch21.addGeometry(Part.Circle(App.Vector(24.13, 7.6, 0), App.Vector(0, 0, 1), 0.3), False)
sketch21.addConstraint([
    Sketcher.Constraint("Diameter", 0, Q("0.6 mm")),
    Sketcher.Constraint("DistanceY", -1, 1, 0, 3, Q("7.6 mm")),
    Sketcher.Constraint("DistanceX", -1, 1, 0, 3, Q("24.13 mm")),
])
pad21 = doc.addObject("PartDesign::Pad", "Pad020")
body21.addObject(pad21)
pad21.Profile = sketch21
pad21.Length = 3
body22 = doc.addObject("PartDesign::Body", "Body021")

# Sketch on XZ plane
sketch22 = doc.addObject("Sketcher::SketchObject", "Sketch021")
body22.addObject(sketch22)
sketch22.AttachmentSupport = (doc.getObject("XZ_Plane021"), [""])
sketch22.MapMode = "FlatFace"
sketch22.addGeometry(Part.Circle(App.Vector(-21.59, -7.6, 0), App.Vector(0, 0, 1), 0.3), False)
sketch22.addConstraint([
    Sketcher.Constraint("Diameter", 0, Q("0.6 mm")),
    Sketcher.Constraint("DistanceY", 0, 3, -1, 1, Q("7.6 mm")),
    Sketcher.Constraint("DistanceX", 0, 3, -1, 1, Q("21.59 mm")),
])
pad22 = doc.addObject("PartDesign::Pad", "Pad021")
body22.addObject(pad22)
pad22.Profile = sketch22
pad22.Length = 3
body23 = doc.addObject("PartDesign::Body", "Body022")

# Sketch on XZ plane
sketch23 = doc.addObject("Sketcher::SketchObject", "Sketch022")
body23.addObject(sketch23)
sketch23.AttachmentSupport = (doc.getObject("XZ_Plane022"), [""])
sketch23.MapMode = "FlatFace"
sketch23.addGeometry(Part.Circle(App.Vector(-19.05, -7.6, 0), App.Vector(0, 0, 1), 0.3), False)
sketch23.addConstraint([
    Sketcher.Constraint("Diameter", 0, Q("0.6 mm")),
    Sketcher.Constraint("DistanceY", 0, 3, -1, 1, Q("7.6 mm")),
    Sketcher.Constraint("DistanceX", 0, 3, -1, 1, Q("19.05 mm")),
])
pad23 = doc.addObject("PartDesign::Pad", "Pad022")
body23.addObject(pad23)
pad23.Profile = sketch23
pad23.Length = 3
body24 = doc.addObject("PartDesign::Body", "Body023")

# Sketch on XZ plane
sketch24 = doc.addObject("Sketcher::SketchObject", "Sketch023")
body24.addObject(sketch24)
sketch24.AttachmentSupport = (doc.getObject("XZ_Plane023"), [""])
sketch24.MapMode = "FlatFace"
sketch24.addGeometry(Part.Circle(App.Vector(-16.51, -7.6, 0), App.Vector(0, 0, 1), 0.3), False)
sketch24.addConstraint([
    Sketcher.Constraint("Diameter", 0, Q("0.6 mm")),
    Sketcher.Constraint("DistanceY", 0, 3, -1, 1, Q("7.6 mm")),
    Sketcher.Constraint("DistanceX", 0, 3, -1, 1, Q("16.51 mm")),
])
pad24 = doc.addObject("PartDesign::Pad", "Pad023")
body24.addObject(pad24)
pad24.Profile = sketch24
pad24.Length = 3
body25 = doc.addObject("PartDesign::Body", "Body024")

# Sketch on XZ plane
sketch25 = doc.addObject("Sketcher::SketchObject", "Sketch024")
body25.addObject(sketch25)
sketch25.AttachmentSupport = (doc.getObject("XZ_Plane024"), [""])
sketch25.MapMode = "FlatFace"
sketch25.addGeometry(Part.Circle(App.Vector(-13.97, -7.6, 0), App.Vector(0, 0, 1), 0.3), False)
sketch25.addConstraint([
    Sketcher.Constraint("Diameter", 0, Q("0.6 mm")),
    Sketcher.Constraint("DistanceY", 0, 3, -1, 1, Q("7.6 mm")),
    Sketcher.Constraint("DistanceX", 0, 3, -1, 1, Q("13.97 mm")),
])
pad25 = doc.addObject("PartDesign::Pad", "Pad024")
body25.addObject(pad25)
pad25.Profile = sketch25
pad25.Length = 3
body26 = doc.addObject("PartDesign::Body", "Body025")

# Sketch on XZ plane
sketch26 = doc.addObject("Sketcher::SketchObject", "Sketch025")
body26.addObject(sketch26)
sketch26.AttachmentSupport = (doc.getObject("XZ_Plane025"), [""])
sketch26.MapMode = "FlatFace"
sketch26.addGeometry(Part.Circle(App.Vector(-11.43, -7.6, 0), App.Vector(0, 0, 1), 0.3), False)
sketch26.addConstraint([
    Sketcher.Constraint("Diameter", 0, Q("0.6 mm")),
    Sketcher.Constraint("DistanceY", 0, 3, -1, 1, Q("7.6 mm")),
    Sketcher.Constraint("DistanceX", 0, 3, -1, 1, Q("11.43 mm")),
])
pad26 = doc.addObject("PartDesign::Pad", "Pad025")
body26.addObject(pad26)
pad26.Profile = sketch26
pad26.Length = 3
body27 = doc.addObject("PartDesign::Body", "Body026")

# Sketch on XZ plane
sketch27 = doc.addObject("Sketcher::SketchObject", "Sketch026")
body27.addObject(sketch27)
sketch27.AttachmentSupport = (doc.getObject("XZ_Plane026"), [""])
sketch27.MapMode = "FlatFace"
sketch27.addGeometry(Part.Circle(App.Vector(-8.89, -7.6, 0), App.Vector(0, 0, 1), 0.3), False)
sketch27.addConstraint([
    Sketcher.Constraint("Diameter", 0, Q("0.6 mm")),
    Sketcher.Constraint("DistanceY", 0, 3, -1, 1, Q("7.6 mm")),
    Sketcher.Constraint("DistanceX", 0, 3, -1, 1, Q("8.89 mm")),
])
pad27 = doc.addObject("PartDesign::Pad", "Pad026")
body27.addObject(pad27)
pad27.Profile = sketch27
pad27.Length = 3
body28 = doc.addObject("PartDesign::Body", "Body027")

# Sketch on XZ plane
sketch28 = doc.addObject("Sketcher::SketchObject", "Sketch027")
body28.addObject(sketch28)
sketch28.AttachmentSupport = (doc.getObject("XZ_Plane027"), [""])
sketch28.MapMode = "FlatFace"
sketch28.addGeometry(Part.Circle(App.Vector(-6.35, -7.6, 0), App.Vector(0, 0, 1), 0.3), False)
sketch28.addConstraint([
    Sketcher.Constraint("Diameter", 0, Q("0.6 mm")),
    Sketcher.Constraint("DistanceY", 0, 3, -1, 1, Q("7.6 mm")),
    Sketcher.Constraint("DistanceX", 0, 3, -1, 1, Q("6.35 mm")),
])
pad28 = doc.addObject("PartDesign::Pad", "Pad027")
body28.addObject(pad28)
pad28.Profile = sketch28
pad28.Length = 3
body29 = doc.addObject("PartDesign::Body", "Body028")

# Sketch on XZ plane
sketch29 = doc.addObject("Sketcher::SketchObject", "Sketch028")
body29.addObject(sketch29)
sketch29.AttachmentSupport = (doc.getObject("XZ_Plane028"), [""])
sketch29.MapMode = "FlatFace"
sketch29.addGeometry(Part.Circle(App.Vector(-3.81, -7.6, 0), App.Vector(0, 0, 1), 0.3), False)
sketch29.addConstraint([
    Sketcher.Constraint("Diameter", 0, Q("0.6 mm")),
    Sketcher.Constraint("DistanceY", 0, 3, -1, 1, Q("7.6 mm")),
    Sketcher.Constraint("DistanceX", 0, 3, -1, 1, Q("3.81 mm")),
])
pad29 = doc.addObject("PartDesign::Pad", "Pad028")
body29.addObject(pad29)
pad29.Profile = sketch29
pad29.Length = 3
body30 = doc.addObject("PartDesign::Body", "Body029")

# Sketch on XZ plane
sketch30 = doc.addObject("Sketcher::SketchObject", "Sketch029")
body30.addObject(sketch30)
sketch30.AttachmentSupport = (doc.getObject("XZ_Plane029"), [""])
sketch30.MapMode = "FlatFace"
sketch30.addGeometry(Part.Circle(App.Vector(-1.27, -7.6, 0), App.Vector(0, 0, 1), 0.3), False)
sketch30.addConstraint([
    Sketcher.Constraint("Diameter", 0, Q("0.6 mm")),
    Sketcher.Constraint("DistanceY", 0, 3, -1, 1, Q("7.6 mm")),
    Sketcher.Constraint("DistanceX", 0, 3, -1, 1, Q("1.27 mm")),
])
pad30 = doc.addObject("PartDesign::Pad", "Pad029")
body30.addObject(pad30)
pad30.Profile = sketch30
pad30.Length = 3
body31 = doc.addObject("PartDesign::Body", "Body030")

# Sketch on XZ plane
sketch31 = doc.addObject("Sketcher::SketchObject", "Sketch030")
body31.addObject(sketch31)
sketch31.AttachmentSupport = (doc.getObject("XZ_Plane030"), [""])
sketch31.MapMode = "FlatFace"
sketch31.addGeometry(Part.Circle(App.Vector(1.27, -7.6, 0), App.Vector(0, 0, 1), 0.3), False)
sketch31.addConstraint([
    Sketcher.Constraint("Diameter", 0, Q("0.6 mm")),
    Sketcher.Constraint("DistanceY", 0, 3, -1, 1, Q("7.6 mm")),
    Sketcher.Constraint("DistanceX", -1, 1, 0, 3, Q("1.27 mm")),
])
pad31 = doc.addObject("PartDesign::Pad", "Pad030")
body31.addObject(pad31)
pad31.Profile = sketch31
pad31.Length = 3
body32 = doc.addObject("PartDesign::Body", "Body031")

# Sketch on XZ plane
sketch32 = doc.addObject("Sketcher::SketchObject", "Sketch031")
body32.addObject(sketch32)
sketch32.AttachmentSupport = (doc.getObject("XZ_Plane031"), [""])
sketch32.MapMode = "FlatFace"
sketch32.addGeometry(Part.Circle(App.Vector(3.81, -7.6, 0), App.Vector(0, 0, 1), 0.3), False)
sketch32.addConstraint([
    Sketcher.Constraint("Diameter", 0, Q("0.6 mm")),
    Sketcher.Constraint("DistanceY", 0, 3, -1, 1, Q("7.6 mm")),
    Sketcher.Constraint("DistanceX", -1, 1, 0, 3, Q("3.81 mm")),
])
pad32 = doc.addObject("PartDesign::Pad", "Pad031")
body32.addObject(pad32)
pad32.Profile = sketch32
pad32.Length = 3
body33 = doc.addObject("PartDesign::Body", "Body032")

# Sketch on XZ plane
sketch33 = doc.addObject("Sketcher::SketchObject", "Sketch032")
body33.addObject(sketch33)
sketch33.AttachmentSupport = (doc.getObject("XZ_Plane032"), [""])
sketch33.MapMode = "FlatFace"
sketch33.addGeometry(Part.Circle(App.Vector(6.35, -7.6, 0), App.Vector(0, 0, 1), 0.3), False)
sketch33.addConstraint([
    Sketcher.Constraint("Diameter", 0, Q("0.6 mm")),
    Sketcher.Constraint("DistanceY", 0, 3, -1, 1, Q("7.6 mm")),
    Sketcher.Constraint("DistanceX", -1, 1, 0, 3, Q("6.35 mm")),
])
pad33 = doc.addObject("PartDesign::Pad", "Pad032")
body33.addObject(pad33)
pad33.Profile = sketch33
pad33.Length = 3
body34 = doc.addObject("PartDesign::Body", "Body033")

# Sketch on XZ plane
sketch34 = doc.addObject("Sketcher::SketchObject", "Sketch033")
body34.addObject(sketch34)
sketch34.AttachmentSupport = (doc.getObject("XZ_Plane033"), [""])
sketch34.MapMode = "FlatFace"
sketch34.addGeometry(Part.Circle(App.Vector(8.89, -7.6, 0), App.Vector(0, 0, 1), 0.3), False)
sketch34.addConstraint([
    Sketcher.Constraint("Diameter", 0, Q("0.6 mm")),
    Sketcher.Constraint("DistanceY", 0, 3, -1, 1, Q("7.6 mm")),
    Sketcher.Constraint("DistanceX", -1, 1, 0, 3, Q("8.89 mm")),
])
pad34 = doc.addObject("PartDesign::Pad", "Pad033")
body34.addObject(pad34)
pad34.Profile = sketch34
pad34.Length = 3
body35 = doc.addObject("PartDesign::Body", "Body034")

# Sketch on XZ plane
sketch35 = doc.addObject("Sketcher::SketchObject", "Sketch034")
body35.addObject(sketch35)
sketch35.AttachmentSupport = (doc.getObject("XZ_Plane034"), [""])
sketch35.MapMode = "FlatFace"
sketch35.addGeometry(Part.Circle(App.Vector(11.43, -7.6, 0), App.Vector(0, 0, 1), 0.3), False)
sketch35.addConstraint([
    Sketcher.Constraint("Diameter", 0, Q("0.6 mm")),
    Sketcher.Constraint("DistanceY", 0, 3, -1, 1, Q("7.6 mm")),
    Sketcher.Constraint("DistanceX", -1, 1, 0, 3, Q("11.43 mm")),
])
pad35 = doc.addObject("PartDesign::Pad", "Pad034")
body35.addObject(pad35)
pad35.Profile = sketch35
pad35.Length = 3
body36 = doc.addObject("PartDesign::Body", "Body035")

# Sketch on XZ plane
sketch36 = doc.addObject("Sketcher::SketchObject", "Sketch035")
body36.addObject(sketch36)
sketch36.AttachmentSupport = (doc.getObject("XZ_Plane035"), [""])
sketch36.MapMode = "FlatFace"
sketch36.addGeometry(Part.Circle(App.Vector(13.97, -7.6, 0), App.Vector(0, 0, 1), 0.3), False)
sketch36.addConstraint([
    Sketcher.Constraint("Diameter", 0, Q("0.6 mm")),
    Sketcher.Constraint("DistanceY", 0, 3, -1, 1, Q("7.6 mm")),
    Sketcher.Constraint("DistanceX", -1, 1, 0, 3, Q("13.97 mm")),
])
pad36 = doc.addObject("PartDesign::Pad", "Pad035")
body36.addObject(pad36)
pad36.Profile = sketch36
pad36.Length = 3
body37 = doc.addObject("PartDesign::Body", "Body036")

# Sketch on XZ plane
sketch37 = doc.addObject("Sketcher::SketchObject", "Sketch036")
body37.addObject(sketch37)
sketch37.AttachmentSupport = (doc.getObject("XZ_Plane036"), [""])
sketch37.MapMode = "FlatFace"
sketch37.addGeometry(Part.Circle(App.Vector(16.51, -7.6, 0), App.Vector(0, 0, 1), 0.3), False)
sketch37.addConstraint([
    Sketcher.Constraint("Diameter", 0, Q("0.6 mm")),
    Sketcher.Constraint("DistanceY", 0, 3, -1, 1, Q("7.6 mm")),
    Sketcher.Constraint("DistanceX", -1, 1, 0, 3, Q("16.51 mm")),
])
pad37 = doc.addObject("PartDesign::Pad", "Pad036")
body37.addObject(pad37)
pad37.Profile = sketch37
pad37.Length = 3
body38 = doc.addObject("PartDesign::Body", "Body037")

# Sketch on XZ plane
sketch38 = doc.addObject("Sketcher::SketchObject", "Sketch037")
body38.addObject(sketch38)
sketch38.AttachmentSupport = (doc.getObject("XZ_Plane037"), [""])
sketch38.MapMode = "FlatFace"
sketch38.addGeometry(Part.Circle(App.Vector(19.05, -7.6, 0), App.Vector(0, 0, 1), 0.3), False)
sketch38.addConstraint([
    Sketcher.Constraint("Diameter", 0, Q("0.6 mm")),
    Sketcher.Constraint("DistanceY", 0, 3, -1, 1, Q("7.6 mm")),
    Sketcher.Constraint("DistanceX", -1, 1, 0, 3, Q("19.05 mm")),
])
pad38 = doc.addObject("PartDesign::Pad", "Pad037")
body38.addObject(pad38)
pad38.Profile = sketch38
pad38.Length = 3
body39 = doc.addObject("PartDesign::Body", "Body038")

# Sketch on XZ plane
sketch39 = doc.addObject("Sketcher::SketchObject", "Sketch038")
body39.addObject(sketch39)
sketch39.AttachmentSupport = (doc.getObject("XZ_Plane038"), [""])
sketch39.MapMode = "FlatFace"
sketch39.addGeometry(Part.Circle(App.Vector(21.59, -7.6, 0), App.Vector(0, 0, 1), 0.3), False)
sketch39.addConstraint([
    Sketcher.Constraint("Diameter", 0, Q("0.6 mm")),
    Sketcher.Constraint("DistanceY", 0, 3, -1, 1, Q("7.6 mm")),
    Sketcher.Constraint("DistanceX", -1, 1, 0, 3, Q("21.59 mm")),
])
pad39 = doc.addObject("PartDesign::Pad", "Pad038")
body39.addObject(pad39)
pad39.Profile = sketch39
pad39.Length = 3
body40 = doc.addObject("PartDesign::Body", "Body039")

# Sketch on XZ plane
sketch40 = doc.addObject("Sketcher::SketchObject", "Sketch039")
body40.addObject(sketch40)
sketch40.AttachmentSupport = (doc.getObject("XZ_Plane039"), [""])
sketch40.MapMode = "FlatFace"
sketch40.addGeometry(Part.Circle(App.Vector(24.13, -7.6, 0), App.Vector(0, 0, 1), 0.3), False)
sketch40.addConstraint([
    Sketcher.Constraint("Diameter", 0, Q("0.6 mm")),
    Sketcher.Constraint("DistanceY", 0, 3, -1, 1, Q("7.6 mm")),
    Sketcher.Constraint("DistanceX", -1, 1, 0, 3, Q("24.13 mm")),
])
pad40 = doc.addObject("PartDesign::Pad", "Pad039")
body40.addObject(pad40)
pad40.Profile = sketch40
pad40.Length = 3
body41 = doc.addObject("PartDesign::Body", "Body040")

# Sketch on XZ plane
sketch41 = doc.addObject("Sketcher::SketchObject", "Sketch040")
body41.addObject(sketch41)
sketch41.AttachmentSupport = (doc.getObject("XZ_Plane040"), [""])
sketch41.MapMode = "FlatFace"
sketch41.addGeometry(Part.Circle(App.Vector(-24.13, -7.6, 0), App.Vector(0, 0, 1), 0.3), False)
sketch41.addConstraint([
    Sketcher.Constraint("Diameter", 0, Q("0.6 mm")),
    Sketcher.Constraint("DistanceY", 0, 3, -1, 1, Q("7.6 mm")),
    Sketcher.Constraint("DistanceX", 0, 3, -1, 1, Q("24.13 mm")),
])
pad41 = doc.addObject("PartDesign::Pad", "Pad040")
body41.addObject(pad41)
pad41.Profile = sketch41
pad41.Length = 3

doc.recompute()
